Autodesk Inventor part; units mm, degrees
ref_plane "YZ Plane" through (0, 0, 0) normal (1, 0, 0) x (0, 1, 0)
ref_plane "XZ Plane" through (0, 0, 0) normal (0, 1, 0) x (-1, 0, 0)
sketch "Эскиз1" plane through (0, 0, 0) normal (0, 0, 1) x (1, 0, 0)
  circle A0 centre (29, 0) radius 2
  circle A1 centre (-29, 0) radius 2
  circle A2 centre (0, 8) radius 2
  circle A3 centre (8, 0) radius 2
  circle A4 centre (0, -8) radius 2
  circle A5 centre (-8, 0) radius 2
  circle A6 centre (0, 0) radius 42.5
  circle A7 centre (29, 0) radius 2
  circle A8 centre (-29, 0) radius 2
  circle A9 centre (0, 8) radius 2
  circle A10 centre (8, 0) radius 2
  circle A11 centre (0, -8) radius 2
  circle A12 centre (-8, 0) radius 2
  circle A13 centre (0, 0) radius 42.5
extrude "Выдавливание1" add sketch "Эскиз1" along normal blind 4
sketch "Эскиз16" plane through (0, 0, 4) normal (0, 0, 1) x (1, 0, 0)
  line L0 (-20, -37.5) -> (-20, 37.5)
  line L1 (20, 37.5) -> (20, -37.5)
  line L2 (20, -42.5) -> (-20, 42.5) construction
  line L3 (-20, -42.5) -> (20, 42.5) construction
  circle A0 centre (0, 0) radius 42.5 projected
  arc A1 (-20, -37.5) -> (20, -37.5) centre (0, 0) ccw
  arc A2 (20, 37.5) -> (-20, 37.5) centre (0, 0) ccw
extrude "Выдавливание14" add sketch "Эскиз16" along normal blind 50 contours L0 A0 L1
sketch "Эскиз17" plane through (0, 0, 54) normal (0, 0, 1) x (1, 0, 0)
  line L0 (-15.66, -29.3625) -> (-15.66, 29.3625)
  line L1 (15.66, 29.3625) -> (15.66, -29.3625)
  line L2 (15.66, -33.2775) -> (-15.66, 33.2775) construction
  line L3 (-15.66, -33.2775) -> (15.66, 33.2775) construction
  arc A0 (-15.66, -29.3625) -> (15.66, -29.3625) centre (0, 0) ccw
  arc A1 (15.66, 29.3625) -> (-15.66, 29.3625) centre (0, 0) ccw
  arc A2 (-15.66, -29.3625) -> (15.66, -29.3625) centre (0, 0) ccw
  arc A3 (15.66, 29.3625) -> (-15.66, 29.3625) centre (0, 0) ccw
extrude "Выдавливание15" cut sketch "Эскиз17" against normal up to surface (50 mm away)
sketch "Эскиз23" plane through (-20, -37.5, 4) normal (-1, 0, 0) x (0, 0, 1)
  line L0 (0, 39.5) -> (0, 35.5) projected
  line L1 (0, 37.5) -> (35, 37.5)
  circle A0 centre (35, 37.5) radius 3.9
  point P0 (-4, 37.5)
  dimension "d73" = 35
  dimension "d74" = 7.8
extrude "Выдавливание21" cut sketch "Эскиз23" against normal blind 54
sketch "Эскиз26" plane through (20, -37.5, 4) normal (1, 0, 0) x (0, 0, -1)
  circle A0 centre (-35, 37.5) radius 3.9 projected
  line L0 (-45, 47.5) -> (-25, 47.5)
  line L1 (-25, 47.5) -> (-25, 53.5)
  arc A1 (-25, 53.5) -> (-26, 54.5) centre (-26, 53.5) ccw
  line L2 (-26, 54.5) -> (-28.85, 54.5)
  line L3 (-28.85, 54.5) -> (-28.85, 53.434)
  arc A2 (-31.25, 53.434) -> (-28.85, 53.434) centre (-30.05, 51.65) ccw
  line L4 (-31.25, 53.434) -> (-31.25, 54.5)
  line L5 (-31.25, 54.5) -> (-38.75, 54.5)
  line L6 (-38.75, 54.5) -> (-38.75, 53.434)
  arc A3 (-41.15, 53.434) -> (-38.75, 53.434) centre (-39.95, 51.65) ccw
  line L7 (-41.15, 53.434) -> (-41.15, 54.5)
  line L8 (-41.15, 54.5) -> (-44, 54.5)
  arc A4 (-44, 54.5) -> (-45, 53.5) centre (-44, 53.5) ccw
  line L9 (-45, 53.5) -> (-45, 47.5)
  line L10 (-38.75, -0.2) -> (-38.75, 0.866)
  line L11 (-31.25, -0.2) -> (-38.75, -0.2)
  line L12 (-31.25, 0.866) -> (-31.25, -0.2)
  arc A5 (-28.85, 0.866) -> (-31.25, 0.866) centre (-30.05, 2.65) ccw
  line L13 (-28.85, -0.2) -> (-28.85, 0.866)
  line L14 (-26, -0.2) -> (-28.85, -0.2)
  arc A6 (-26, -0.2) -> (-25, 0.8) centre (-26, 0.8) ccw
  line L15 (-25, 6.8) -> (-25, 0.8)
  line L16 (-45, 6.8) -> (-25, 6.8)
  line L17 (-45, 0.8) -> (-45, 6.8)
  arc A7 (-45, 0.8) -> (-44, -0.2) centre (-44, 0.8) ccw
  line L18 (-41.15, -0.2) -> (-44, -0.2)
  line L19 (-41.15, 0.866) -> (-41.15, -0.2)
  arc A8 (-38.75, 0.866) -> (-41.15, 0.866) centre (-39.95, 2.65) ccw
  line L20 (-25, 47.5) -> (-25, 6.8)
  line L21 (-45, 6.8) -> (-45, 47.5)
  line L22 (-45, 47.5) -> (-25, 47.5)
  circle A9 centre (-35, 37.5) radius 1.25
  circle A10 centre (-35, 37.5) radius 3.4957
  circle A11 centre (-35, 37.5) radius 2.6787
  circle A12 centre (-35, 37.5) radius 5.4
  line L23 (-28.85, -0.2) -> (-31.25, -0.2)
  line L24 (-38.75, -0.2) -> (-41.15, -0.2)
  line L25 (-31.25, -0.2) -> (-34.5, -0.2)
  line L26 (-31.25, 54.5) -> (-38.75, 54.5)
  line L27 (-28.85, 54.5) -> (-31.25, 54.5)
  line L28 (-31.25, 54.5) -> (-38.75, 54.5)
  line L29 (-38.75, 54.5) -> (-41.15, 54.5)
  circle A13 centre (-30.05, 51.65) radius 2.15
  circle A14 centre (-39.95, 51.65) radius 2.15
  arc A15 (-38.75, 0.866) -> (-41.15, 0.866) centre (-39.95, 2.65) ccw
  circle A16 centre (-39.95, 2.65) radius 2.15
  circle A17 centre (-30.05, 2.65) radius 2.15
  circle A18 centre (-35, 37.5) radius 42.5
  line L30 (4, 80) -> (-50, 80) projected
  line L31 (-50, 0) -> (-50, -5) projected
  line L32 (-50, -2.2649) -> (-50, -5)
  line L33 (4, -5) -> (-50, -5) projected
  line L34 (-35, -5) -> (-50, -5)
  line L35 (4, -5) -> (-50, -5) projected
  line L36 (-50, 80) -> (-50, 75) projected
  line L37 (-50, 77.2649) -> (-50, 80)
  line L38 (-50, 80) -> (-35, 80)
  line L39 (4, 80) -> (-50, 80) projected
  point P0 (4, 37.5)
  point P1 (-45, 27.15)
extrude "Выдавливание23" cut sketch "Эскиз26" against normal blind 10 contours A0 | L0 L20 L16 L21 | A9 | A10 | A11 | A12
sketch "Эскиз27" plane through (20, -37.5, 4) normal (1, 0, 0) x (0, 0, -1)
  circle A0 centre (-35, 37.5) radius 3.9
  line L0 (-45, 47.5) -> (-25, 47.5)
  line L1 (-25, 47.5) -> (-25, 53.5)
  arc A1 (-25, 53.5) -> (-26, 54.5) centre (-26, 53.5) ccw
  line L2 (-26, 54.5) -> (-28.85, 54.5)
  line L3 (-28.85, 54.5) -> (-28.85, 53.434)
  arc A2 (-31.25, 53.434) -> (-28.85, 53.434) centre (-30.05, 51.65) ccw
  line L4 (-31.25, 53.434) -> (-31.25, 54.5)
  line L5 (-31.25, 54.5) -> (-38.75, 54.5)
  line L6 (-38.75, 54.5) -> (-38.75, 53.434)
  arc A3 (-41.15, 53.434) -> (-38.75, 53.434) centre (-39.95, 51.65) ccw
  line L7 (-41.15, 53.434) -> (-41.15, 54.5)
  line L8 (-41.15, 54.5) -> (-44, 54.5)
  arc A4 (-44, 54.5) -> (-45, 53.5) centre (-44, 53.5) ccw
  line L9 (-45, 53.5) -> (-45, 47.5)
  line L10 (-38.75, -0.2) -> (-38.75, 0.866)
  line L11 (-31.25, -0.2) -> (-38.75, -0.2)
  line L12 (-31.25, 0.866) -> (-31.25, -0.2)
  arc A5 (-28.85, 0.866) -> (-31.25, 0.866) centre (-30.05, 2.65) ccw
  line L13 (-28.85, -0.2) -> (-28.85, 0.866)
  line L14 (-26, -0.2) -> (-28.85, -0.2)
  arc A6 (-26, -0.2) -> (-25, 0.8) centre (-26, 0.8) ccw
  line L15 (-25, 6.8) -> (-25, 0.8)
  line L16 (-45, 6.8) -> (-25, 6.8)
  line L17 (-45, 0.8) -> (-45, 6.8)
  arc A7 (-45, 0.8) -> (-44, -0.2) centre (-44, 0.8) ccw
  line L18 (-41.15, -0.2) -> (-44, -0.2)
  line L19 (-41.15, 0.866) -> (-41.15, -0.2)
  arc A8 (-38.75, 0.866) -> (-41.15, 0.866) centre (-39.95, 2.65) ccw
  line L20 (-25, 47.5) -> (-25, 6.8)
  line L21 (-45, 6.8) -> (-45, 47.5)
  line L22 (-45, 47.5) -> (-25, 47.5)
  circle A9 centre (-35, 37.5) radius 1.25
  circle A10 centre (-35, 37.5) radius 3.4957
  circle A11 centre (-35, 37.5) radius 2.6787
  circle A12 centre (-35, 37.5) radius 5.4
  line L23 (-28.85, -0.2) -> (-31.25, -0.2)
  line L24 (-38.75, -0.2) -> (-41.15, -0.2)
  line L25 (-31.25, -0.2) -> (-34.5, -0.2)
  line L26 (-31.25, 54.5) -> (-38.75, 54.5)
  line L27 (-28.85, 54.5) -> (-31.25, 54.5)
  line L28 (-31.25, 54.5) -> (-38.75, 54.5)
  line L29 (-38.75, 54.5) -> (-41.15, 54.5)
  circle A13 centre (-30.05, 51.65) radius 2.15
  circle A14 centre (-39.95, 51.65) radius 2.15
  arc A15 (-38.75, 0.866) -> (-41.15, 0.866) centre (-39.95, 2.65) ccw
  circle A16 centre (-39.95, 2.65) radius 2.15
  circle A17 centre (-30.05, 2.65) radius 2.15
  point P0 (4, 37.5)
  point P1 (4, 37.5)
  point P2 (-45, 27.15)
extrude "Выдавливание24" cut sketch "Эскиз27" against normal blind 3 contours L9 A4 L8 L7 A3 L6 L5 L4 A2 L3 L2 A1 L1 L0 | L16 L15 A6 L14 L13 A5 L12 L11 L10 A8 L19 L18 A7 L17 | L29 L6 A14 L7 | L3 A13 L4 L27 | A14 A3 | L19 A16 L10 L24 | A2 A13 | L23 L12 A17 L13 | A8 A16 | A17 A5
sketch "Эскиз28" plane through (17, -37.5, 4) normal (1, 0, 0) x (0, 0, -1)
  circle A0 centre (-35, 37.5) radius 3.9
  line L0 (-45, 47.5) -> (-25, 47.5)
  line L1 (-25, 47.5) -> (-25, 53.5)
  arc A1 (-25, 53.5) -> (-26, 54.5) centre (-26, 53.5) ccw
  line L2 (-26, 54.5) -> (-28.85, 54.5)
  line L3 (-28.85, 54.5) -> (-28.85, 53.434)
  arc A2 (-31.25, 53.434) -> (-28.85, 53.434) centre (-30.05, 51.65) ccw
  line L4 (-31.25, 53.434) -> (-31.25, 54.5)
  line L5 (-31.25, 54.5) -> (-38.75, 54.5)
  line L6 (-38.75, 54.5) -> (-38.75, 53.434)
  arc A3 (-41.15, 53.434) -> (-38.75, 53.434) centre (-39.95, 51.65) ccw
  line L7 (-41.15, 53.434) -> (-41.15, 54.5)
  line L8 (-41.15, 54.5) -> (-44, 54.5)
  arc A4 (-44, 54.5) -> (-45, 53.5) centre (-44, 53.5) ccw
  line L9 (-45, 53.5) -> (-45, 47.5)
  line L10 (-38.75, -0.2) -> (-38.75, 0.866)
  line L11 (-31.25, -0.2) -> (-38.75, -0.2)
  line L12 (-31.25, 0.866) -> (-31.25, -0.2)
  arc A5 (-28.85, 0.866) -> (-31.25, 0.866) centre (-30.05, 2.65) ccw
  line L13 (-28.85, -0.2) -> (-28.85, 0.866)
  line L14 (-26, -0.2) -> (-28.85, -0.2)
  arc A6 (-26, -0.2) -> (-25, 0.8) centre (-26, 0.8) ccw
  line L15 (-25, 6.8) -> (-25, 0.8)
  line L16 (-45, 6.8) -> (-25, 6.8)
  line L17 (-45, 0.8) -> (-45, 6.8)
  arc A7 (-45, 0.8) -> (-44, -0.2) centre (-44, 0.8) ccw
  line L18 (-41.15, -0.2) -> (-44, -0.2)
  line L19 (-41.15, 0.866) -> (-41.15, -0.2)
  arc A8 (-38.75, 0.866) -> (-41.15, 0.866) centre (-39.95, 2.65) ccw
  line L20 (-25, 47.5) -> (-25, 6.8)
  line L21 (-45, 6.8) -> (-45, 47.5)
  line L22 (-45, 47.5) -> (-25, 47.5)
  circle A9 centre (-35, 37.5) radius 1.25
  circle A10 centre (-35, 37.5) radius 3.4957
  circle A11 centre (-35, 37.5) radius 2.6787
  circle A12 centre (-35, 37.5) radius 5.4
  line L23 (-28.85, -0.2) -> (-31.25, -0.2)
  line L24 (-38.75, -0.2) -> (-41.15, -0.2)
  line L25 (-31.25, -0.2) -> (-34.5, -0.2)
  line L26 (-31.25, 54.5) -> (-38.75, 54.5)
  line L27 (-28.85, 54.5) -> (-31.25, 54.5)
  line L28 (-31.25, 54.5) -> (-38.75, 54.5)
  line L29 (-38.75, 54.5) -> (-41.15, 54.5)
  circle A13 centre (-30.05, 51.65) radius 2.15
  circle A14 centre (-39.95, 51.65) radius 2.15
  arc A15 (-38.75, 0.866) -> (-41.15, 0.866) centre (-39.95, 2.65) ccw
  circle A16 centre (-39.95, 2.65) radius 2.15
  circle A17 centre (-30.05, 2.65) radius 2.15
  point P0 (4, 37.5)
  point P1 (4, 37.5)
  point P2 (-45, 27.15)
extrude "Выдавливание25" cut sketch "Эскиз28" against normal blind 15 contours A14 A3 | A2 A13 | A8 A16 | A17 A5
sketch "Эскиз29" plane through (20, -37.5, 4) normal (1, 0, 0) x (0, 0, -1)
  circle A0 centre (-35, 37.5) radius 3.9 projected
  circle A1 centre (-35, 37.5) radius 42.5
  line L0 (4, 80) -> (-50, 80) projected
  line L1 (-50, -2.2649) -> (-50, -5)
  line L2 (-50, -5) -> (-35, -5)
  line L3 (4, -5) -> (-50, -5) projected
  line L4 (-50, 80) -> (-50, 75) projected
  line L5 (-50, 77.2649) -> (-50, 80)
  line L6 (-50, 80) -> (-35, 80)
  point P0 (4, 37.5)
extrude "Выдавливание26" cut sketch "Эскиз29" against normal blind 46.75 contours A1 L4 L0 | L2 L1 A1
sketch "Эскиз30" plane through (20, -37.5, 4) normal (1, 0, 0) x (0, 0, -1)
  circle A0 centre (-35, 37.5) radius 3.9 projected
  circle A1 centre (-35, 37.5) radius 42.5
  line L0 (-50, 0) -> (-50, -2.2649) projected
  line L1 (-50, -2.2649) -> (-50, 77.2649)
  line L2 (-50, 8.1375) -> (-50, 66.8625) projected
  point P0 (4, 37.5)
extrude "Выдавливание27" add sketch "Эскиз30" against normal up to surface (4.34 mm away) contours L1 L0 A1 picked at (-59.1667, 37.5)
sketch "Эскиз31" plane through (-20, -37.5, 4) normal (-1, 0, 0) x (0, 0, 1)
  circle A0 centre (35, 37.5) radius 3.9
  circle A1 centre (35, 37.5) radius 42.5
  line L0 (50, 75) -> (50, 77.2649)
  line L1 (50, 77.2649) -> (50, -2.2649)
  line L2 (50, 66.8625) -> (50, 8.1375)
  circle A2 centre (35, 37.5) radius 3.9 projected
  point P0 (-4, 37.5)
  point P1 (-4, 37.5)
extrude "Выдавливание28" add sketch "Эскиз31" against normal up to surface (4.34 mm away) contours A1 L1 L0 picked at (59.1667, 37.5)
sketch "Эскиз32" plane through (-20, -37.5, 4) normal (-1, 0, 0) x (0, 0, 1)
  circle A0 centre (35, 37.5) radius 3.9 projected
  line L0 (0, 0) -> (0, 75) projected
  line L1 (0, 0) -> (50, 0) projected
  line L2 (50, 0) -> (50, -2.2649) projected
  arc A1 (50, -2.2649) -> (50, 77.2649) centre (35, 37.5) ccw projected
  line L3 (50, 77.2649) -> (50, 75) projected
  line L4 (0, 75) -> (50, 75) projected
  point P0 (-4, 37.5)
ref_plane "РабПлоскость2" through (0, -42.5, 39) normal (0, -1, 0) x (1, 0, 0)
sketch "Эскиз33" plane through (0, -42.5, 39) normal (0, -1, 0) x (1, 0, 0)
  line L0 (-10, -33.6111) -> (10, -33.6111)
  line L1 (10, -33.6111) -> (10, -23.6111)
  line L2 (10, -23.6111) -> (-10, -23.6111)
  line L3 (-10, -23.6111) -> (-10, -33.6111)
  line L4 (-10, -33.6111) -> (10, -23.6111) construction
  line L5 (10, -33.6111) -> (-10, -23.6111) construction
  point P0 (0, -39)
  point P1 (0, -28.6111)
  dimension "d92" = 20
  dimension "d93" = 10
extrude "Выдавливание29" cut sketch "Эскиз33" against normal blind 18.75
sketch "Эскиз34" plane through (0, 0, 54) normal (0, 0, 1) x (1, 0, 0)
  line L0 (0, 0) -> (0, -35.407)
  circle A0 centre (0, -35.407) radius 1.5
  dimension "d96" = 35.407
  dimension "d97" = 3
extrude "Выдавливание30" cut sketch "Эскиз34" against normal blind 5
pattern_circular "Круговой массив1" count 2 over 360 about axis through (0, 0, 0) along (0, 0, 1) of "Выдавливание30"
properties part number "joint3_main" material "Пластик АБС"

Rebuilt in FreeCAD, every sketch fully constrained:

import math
import FreeCAD as App
import Part
import Sketcher
from FreeCAD import Vector
Q = App.Units.Quantity


def add_polygon(sketch, points):
    """Adds a closed chain of lines whose ends are joined by coincident constraints."""
    first, n = sketch.GeometryCount, len(points)
    for a, b in zip(points, points[1:] + points[:1]):
        sketch.addGeometry(Part.LineSegment(App.Vector(*a, 0), App.Vector(*b, 0)), False)
    for i in range(n):
        sketch.addConstraint(Sketcher.Constraint("Coincident", first + i, 2, first + (i + 1) % n, 1))

doc = App.newDocument("Part")
params = doc.addObject("Spreadsheet::Sheet", "Params")
for row, (alias, value) in enumerate([
    ("sketch1_diameter", "85 mm"),
    ("sketch1_diameter2", "4 mm"),
    ("pad1_length", "4 mm"),
    ("sketch2_radius", "42.5 mm"),
    ("sketch2_height", "75 mm"),
    ("pad2_length", "50 mm"),
    ("pocket1_length", "50 mm"),
    ("sketch4_diameter", "7.8 mm"),
    ("pocket2_length", "54 mm"),
    ("sketch5_height", "20 mm"),
    ("sketch5_width", "40.7 mm"),
    ("pocket3_length", "10 mm"),
    ("sketch6_radius", "1 mm"),
    ("sketch6_width", "6 mm"),
    ("sketch6_height", "20 mm"),
    ("pocket4_length", "3 mm"),
    ("sketch7_diameter", "4.3 mm"),
    ("pocket5_length", "15 mm"),
    ("sketch8_radius", "42.5 mm"),
    ("sketch8_height", "15 mm"),
    ("pocket6_length", "46.75 mm"),
    ("sketch9_radius", "42.5 mm"),
    ("pad3_length", "4.34 mm"),
    ("sketch10_radius", "42.5 mm"),
    ("pad4_length", "4.34 mm"),
    ("sketch11_width", "20 mm"),
    ("sketch11_height", "10 mm"),
    ("pocket7_length", "18.75 mm"),
    ("sketch12_diameter", "3 mm"),
    ("pocket8_length", "5 mm"),
], start=1):
    params.set(f"A{row}", alias)
    params.set(f"B{row}", "=" + value)
    params.setAlias(f"B{row}", alias)

body = doc.addObject("PartDesign::Body", "Body")

# Sketch on XY plane
sketch1 = body.newObject("Sketcher::SketchObject", "Sketch")
sketch1.AttachmentSupport = (doc.getObject("XY_Plane"), [""])
sketch1.MapMode = "FlatFace"
sketch1.addGeometry([
    Part.Circle(Vector(0, 0, 0), Vector(0, 0, 1), 42.5),  # 0
    Part.Circle(Vector(0, -8, 0), Vector(0, 0, 1), 2),  # 1
    Part.Circle(Vector(-29, 0, 0), Vector(0, 0, 1), 2),  # 2
    Part.Circle(Vector(-8, 0, 0), Vector(0, 0, 1), 2),  # 3
    Part.Circle(Vector(8, 0, 0), Vector(0, 0, 1), 2),  # 4
    Part.Circle(Vector(0, 8, 0), Vector(0, 0, 1), 2),  # 5
    Part.Circle(Vector(29, 0, 0), Vector(0, 0, 1), 2),  # 6
], False)
sketch1.addConstraint([
    Sketcher.Constraint("Coincident", 0, 3, -1, 1),
    Sketcher.Constraint("Equal", 1, 2),
    Sketcher.Constraint("Equal", 2, 3),
    Sketcher.Constraint("Equal", 3, 4),
    Sketcher.Constraint("Equal", 4, 5),
    Sketcher.Constraint("Equal", 5, 6),
    Sketcher.Constraint("Symmetric", 3, 3, 4, 3, -1, 1),
    Sketcher.Constraint("Symmetric", 1, 3, 5, 3, -1, 1),
    Sketcher.Constraint("Symmetric", 2, 3, 6, 3, -1, 1),
    Sketcher.Constraint("PointOnObject", 1, 3, -2),
    Sketcher.Constraint("PointOnObject", 2, 3, -1),
    Sketcher.Constraint("PointOnObject", 3, 3, -1),
    Sketcher.Constraint("Diameter", 0, Q("85 mm")),
    Sketcher.Constraint("Diameter", 1, Q("4 mm")),
    Sketcher.Constraint("DistanceY", 1, 3, -1, 1, Q("8 mm")),
    Sketcher.Constraint("DistanceX", 2, 3, -1, 1, Q("29 mm")),
    Sketcher.Constraint("DistanceX", 3, 3, -1, 1, Q("8 mm")),
])
sketch1.setExpression("Constraints[12]", "Params.sketch1_diameter")
sketch1.setExpression("Constraints[13]", "Params.sketch1_diameter2")
pad1 = body.newObject("PartDesign::Pad", "Pad")
pad1.Profile = sketch1
pad1.setExpression("Length", "Params.pad1_length")

# Sketch on XY plane
sketch2 = body.newObject("Sketcher::SketchObject", "Sketch001")
sketch2.AttachmentSupport = (doc.getObject("XY_Plane"), [""])
sketch2.MapMode = "FlatFace"
sketch2.AttachmentOffset = App.Placement(Vector(0, 0, 4), App.Rotation())
sketch2.addGeometry([
    Part.LineSegment(Vector(-20, 37.5, 0), Vector(-20, -37.5, 0)),
    Part.ArcOfCircle(Part.Circle(Vector(0, 0, 0), Vector(0, 0, 1), 42.5), math.radians(-118.072487), math.radians(-61.927513)),
    Part.LineSegment(Vector(20, -37.5, 0), Vector(20, 37.5, 0)),
    Part.ArcOfCircle(Part.Circle(Vector(0, 0, 0), Vector(0, 0, 1), 42.5), math.radians(61.927513), math.radians(118.072487)),
], False)
sketch2.addConstraint([
    Sketcher.Constraint("Coincident", 0, 2, 1, 1),
    Sketcher.Constraint("Coincident", 1, 2, 2, 1),
    Sketcher.Constraint("Coincident", 2, 2, 3, 1),
    Sketcher.Constraint("Coincident", 3, 2, 0, 1),
    Sketcher.Constraint("Vertical", 0),
    Sketcher.Constraint("Vertical", 2),
    Sketcher.Constraint("Coincident", 1, 3, -1, 1),
    Sketcher.Constraint("Coincident", 3, 3, -1, 1),
    Sketcher.Constraint("Equal", 1, 3),
    Sketcher.Constraint("Horizontal", 0, 2, 1, 2),
    Sketcher.Constraint("Radius", 1, Q("42.5 mm")),
    Sketcher.Constraint("DistanceY", 0, 2, 0, 1, Q("75 mm")),
])
sketch2.setExpression("Constraints[10]", "Params.sketch2_radius")
sketch2.setExpression("Constraints[11]", "Params.sketch2_height")
pad2 = body.newObject("PartDesign::Pad", "Pad001")
pad2.Profile = sketch2
pad2.setExpression("Length", "Params.pad2_length")

# Sketch on XY plane
sketch3 = body.newObject("Sketcher::SketchObject", "Sketch002")
sketch3.AttachmentSupport = (doc.getObject("XY_Plane"), [""])
sketch3.MapMode = "FlatFace"
sketch3.AttachmentOffset = App.Placement(Vector(0, 0, 54), App.Rotation())
sketch3.addGeometry([
    Part.LineSegment(Vector(-15.66, 29.3625, 0), Vector(-15.66, -29.3625, 0)),
    Part.ArcOfCircle(Part.Circle(Vector(0, 0, 0), Vector(0, 0, 1), 33.2775), math.radians(-118.072487), math.radians(-61.927513)),
    Part.LineSegment(Vector(15.66, -29.3625, 0), Vector(15.66, 29.3625, 0)),
    Part.ArcOfCircle(Part.Circle(Vector(0, 0, 0), Vector(0, 0, 1), 33.2775), math.radians(61.927513), math.radians(118.072487)),
], False)
sketch3.addConstraint([
    Sketcher.Constraint("Coincident", 0, 2, 1, 1),
    Sketcher.Constraint("Coincident", 1, 2, 2, 1),
    Sketcher.Constraint("Coincident", 2, 2, 3, 1),
    Sketcher.Constraint("Coincident", 3, 2, 0, 1),
    Sketcher.Constraint("Vertical", 0),
    Sketcher.Constraint("Vertical", 2),
    Sketcher.Constraint("Coincident", 1, 3, -1, 1),
    Sketcher.Constraint("Coincident", 3, 3, -1, 1),
    Sketcher.Constraint("Equal", 1, 3),
    Sketcher.Constraint("Horizontal", 0, 2, 1, 2),
    Sketcher.Constraint("Radius", 1, Q("33.2775 mm")),
    Sketcher.Constraint("DistanceY", 0, 2, 0, 1, Q("58.725 mm")),
])
pocket1 = body.newObject("PartDesign::Pocket", "Pocket")
pocket1.Profile = sketch3
pocket1.setExpression("Length", "Params.pocket1_length")

# Sketch on YZ plane
sketch4 = body.newObject("Sketcher::SketchObject", "Sketch003")
sketch4.AttachmentSupport = (doc.getObject("YZ_Plane"), [""])
sketch4.MapMode = "FlatFace"
sketch4.AttachmentOffset = App.Placement(Vector(0, 0, -20), App.Rotation())
sketch4.addGeometry(Part.Circle(Vector(0, 39, 0), Vector(0, 0, 1), 3.9), False)
sketch4.addConstraint([
    Sketcher.Constraint("PointOnObject", 0, 3, -2),
    Sketcher.Constraint("Diameter", 0, Q("7.8 mm")),
    Sketcher.Constraint("DistanceY", -1, 1, 0, 3, Q("39 mm")),
])
sketch4.setExpression("Constraints[1]", "Params.sketch4_diameter")
pocket2 = body.newObject("PartDesign::Pocket", "Pocket001")
pocket2.Profile = sketch4
pocket2.setExpression("Length", "Params.pocket2_length")
pocket2.Reversed = True

# Sketch on YZ plane
sketch5 = body.newObject("Sketcher::SketchObject", "Sketch004")
sketch5.AttachmentSupport = (doc.getObject("YZ_Plane"), [""])
sketch5.MapMode = "FlatFace"
sketch5.AttachmentOffset = App.Placement(Vector(0, 0, 20), App.Rotation())
add_polygon(sketch5, [(10, 29), (10, 49), (-30.7, 49), (-30.7, 29)])  # lines 0-3
sketch5.addConstraint([
    Sketcher.Constraint("Vertical", 0),
    Sketcher.Constraint("Horizontal", 1),
    Sketcher.Constraint("Vertical", 2),
    Sketcher.Constraint("Horizontal", 3),
    Sketcher.Constraint("DistanceY", 0, 1, 0, 2, Q("20 mm")),
    Sketcher.Constraint("DistanceX", 1, 2, 1, 1, Q("40.7 mm")),
    Sketcher.Constraint("DistanceX", -1, 1, 0, 2, Q("10 mm")),
    Sketcher.Constraint("DistanceY", -1, 1, 0, 2, Q("49 mm")),
])
sketch5.setExpression("Constraints[8]", "Params.sketch5_height")
sketch5.setExpression("Constraints[9]", "Params.sketch5_width")
pocket3 = body.newObject("PartDesign::Pocket", "Pocket002")
pocket3.Profile = sketch5
pocket3.setExpression("Length", "Params.pocket3_length")

# Sketch on YZ plane
sketch6 = body.newObject("Sketcher::SketchObject", "Sketch005")
sketch6.AttachmentSupport = (doc.getObject("YZ_Plane"), [""])
sketch6.MapMode = "FlatFace"
sketch6.AttachmentOffset = App.Placement(Vector(0, 0, 20), App.Rotation())
sketch6.addGeometry([
    Part.LineSegment(Vector(16, 49, 0), Vector(10, 49, 0)),  # 0
    Part.LineSegment(Vector(10, 49, 0), Vector(10, 29, 0)),  # 1
    Part.LineSegment(Vector(10, 29, 0), Vector(16, 29, 0)),  # 2
    Part.ArcOfCircle(Part.Circle(Vector(16, 30, 0), Vector(0, 0, 1), 1), math.radians(-90), math.radians(0)),  # 3
    Part.LineSegment(Vector(17, 30, 0), Vector(17, 48, 0)),  # 4
    Part.ArcOfCircle(Part.Circle(Vector(16, 48, 0), Vector(0, 0, 1), 1), math.radians(0), math.radians(90)),  # 5
    Part.LineSegment(Vector(-30.7, 29, 0), Vector(-30.7, 49, 0)),  # 6
    Part.LineSegment(Vector(-30.7, 49, 0), Vector(-36.7, 49, 0)),  # 7
    Part.ArcOfCircle(Part.Circle(Vector(-36.7, 48, 0), Vector(0, 0, 1), 1), math.radians(90), math.radians(180)),  # 8
    Part.LineSegment(Vector(-37.7, 48, 0), Vector(-37.7, 30, 0)),  # 9
    Part.ArcOfCircle(Part.Circle(Vector(-36.7, 30, 0), Vector(0, 0, 1), 1), math.radians(180), math.radians(270)),  # 10
    Part.LineSegment(Vector(-36.7, 29, 0), Vector(-30.7, 29, 0)),  # 11
], False)
sketch6.addConstraint([
    Sketcher.Constraint("Coincident", 0, 2, 1, 1),
    Sketcher.Constraint("Coincident", 1, 2, 2, 1),
    Sketcher.Constraint("Tangent", 2, 2, 3, 1),
    Sketcher.Constraint("Tangent", 3, 2, 4, 1),
    Sketcher.Constraint("Tangent", 4, 2, 5, 1),
    Sketcher.Constraint("Tangent", 5, 2, 0, 1),
    Sketcher.Constraint("Coincident", 6, 2, 7, 1),
    Sketcher.Constraint("Tangent", 7, 2, 8, 1),
    Sketcher.Constraint("Tangent", 8, 2, 9, 1),
    Sketcher.Constraint("Tangent", 9, 2, 10, 1),
    Sketcher.Constraint("Tangent", 10, 2, 11, 1),
    Sketcher.Constraint("Coincident", 11, 2, 6, 1),
    Sketcher.Constraint("Horizontal", 0),
    Sketcher.Constraint("Vertical", 1),
    Sketcher.Constraint("Horizontal", 2),
    Sketcher.Constraint("Vertical", 4),
    Sketcher.Constraint("Vertical", 6),
    Sketcher.Constraint("Horizontal", 7),
    Sketcher.Constraint("Vertical", 9),
    Sketcher.Constraint("Horizontal", 11),
    Sketcher.Constraint("Equal", 3, 5),
    Sketcher.Constraint("Equal", 5, 8),
    Sketcher.Constraint("Equal", 8, 10),
    Sketcher.Constraint("Horizontal", 5, 3, 8, 3),
    Sketcher.Constraint("Horizontal", 3, 3, 10, 3),
    Sketcher.Constraint("Equal", 2, 7),
    Sketcher.Constraint("Radius", 3, Q("1 mm")),
    Sketcher.Constraint("DistanceX", 0, 2, 0, 1, Q("6 mm")),
    Sketcher.Constraint("DistanceY", 1, 2, 1, 1, Q("20 mm")),
    Sketcher.Constraint("DistanceX", -1, 1, 3, 3, Q("16 mm")),
    Sketcher.Constraint("DistanceY", -1, 1, 3, 3, Q("30 mm")),
    Sketcher.Constraint("DistanceX", 8, 3, -1, 1, Q("36.7 mm")),
])
sketch6.setExpression("Constraints[26]", "Params.sketch6_radius")
sketch6.setExpression("Constraints[27]", "Params.sketch6_width")
sketch6.setExpression("Constraints[28]", "Params.sketch6_height")
pocket4 = body.newObject("PartDesign::Pocket", "Pocket003")
pocket4.Profile = sketch6
pocket4.setExpression("Length", "Params.pocket4_length")

# Sketch on YZ plane
sketch7 = body.newObject("Sketcher::SketchObject", "Sketch006")
sketch7.AttachmentSupport = (doc.getObject("YZ_Plane"), [""])
sketch7.MapMode = "FlatFace"
sketch7.AttachmentOffset = App.Placement(Vector(0, 0, 17), App.Rotation())
sketch7.addGeometry([
    Part.Circle(Vector(14.15, 43.95, 0), Vector(0, 0, 1), 2.150036),
    Part.Circle(Vector(14.15, 34.05, 0), Vector(0, 0, 1), 2.15),
    Part.Circle(Vector(-34.85, 43.95, 0), Vector(0, 0, 1), 2.15),
    Part.Circle(Vector(-34.85, 34.05, 0), Vector(0, 0, 1), 2.150036),
], False)
sketch7.addConstraint([
    Sketcher.Constraint("Equal", 0, 1),
    Sketcher.Constraint("Equal", 1, 2),
    Sketcher.Constraint("Equal", 2, 3),
    Sketcher.Constraint("Horizontal", 0, 3, 2, 3),
    Sketcher.Constraint("Horizontal", 1, 3, 3, 3),
    Sketcher.Constraint("Vertical", 0, 3, 1, 3),
    Sketcher.Constraint("Vertical", 2, 3, 3, 3),
    Sketcher.Constraint("Diameter", 0, Q("4.3 mm")),
    Sketcher.Constraint("DistanceX", 2, 3, 0, 3, Q("49 mm")),
    Sketcher.Constraint("DistanceY", 1, 3, 0, 3, Q("9.9 mm")),
    Sketcher.Constraint("DistanceX", -1, 1, 0, 3, Q("14.15 mm")),
    Sketcher.Constraint("DistanceY", -1, 1, 0, 3, Q("43.95 mm")),
])
sketch7.setExpression("Constraints[7]", "Params.sketch7_diameter")
pocket5 = body.newObject("PartDesign::Pocket", "Pocket004")
pocket5.Profile = sketch7
pocket5.setExpression("Length", "Params.pocket5_length")

# Sketch on YZ plane
sketch8 = body.newObject("Sketcher::SketchObject", "Sketch007")
sketch8.AttachmentSupport = (doc.getObject("YZ_Plane"), [""])
sketch8.MapMode = "FlatFace"
sketch8.AttachmentOffset = App.Placement(Vector(0, 0, 20), App.Rotation())
sketch8.addGeometry([
    Part.ArcOfCircle(Part.Circle(Vector(0, 39, 0), Vector(0, 0, 1), 42.5), math.radians(0), math.radians(20.667333)),  # 0
    Part.LineSegment(Vector(42.5, 39, 0), Vector(42.5, 54, 0)),  # 1
    Part.LineSegment(Vector(42.5, 54, 0), Vector(39.7649, 54, 0)),  # 2
    Part.LineSegment(Vector(-42.5, 54, 0), Vector(-42.5, 39, 0)),  # 3
    Part.ArcOfCircle(Part.Circle(Vector(0, 39, 0), Vector(0, 0, 1), 42.5), math.radians(159.332667), math.radians(180)),  # 4
    Part.LineSegment(Vector(-39.7649, 54, 0), Vector(-42.5, 54, 0)),  # 5
], False)
sketch8.addConstraint([
    Sketcher.Constraint("Tangent", 0, 1, 1, 1),
    Sketcher.Constraint("Coincident", 1, 2, 2, 1),
    Sketcher.Constraint("Coincident", 2, 2, 0, 2),
    Sketcher.Constraint("Tangent", 3, 2, 4, 2),
    Sketcher.Constraint("Coincident", 4, 1, 5, 1),
    Sketcher.Constraint("Coincident", 5, 2, 3, 1),
    Sketcher.Constraint("Vertical", 1),
    Sketcher.Constraint("Horizontal", 2),
    Sketcher.Constraint("Vertical", 3),
    Sketcher.Constraint("Horizontal", 5),
    Sketcher.Constraint("Coincident", 4, 3, 0, 3),
    Sketcher.Constraint("Equal", 0, 4),
    Sketcher.Constraint("Symmetric", 2, 2, 4, 1, -2),
    Sketcher.Constraint("Radius", 0, Q("42.5 mm")),
    Sketcher.Constraint("DistanceY", 1, 1, 1, 2, Q("15 mm")),
    Sketcher.Constraint("DistanceY", -1, 1, 0, 3, Q("39 mm")),
])
sketch8.setExpression("Constraints[13]", "Params.sketch8_radius")
sketch8.setExpression("Constraints[14]", "Params.sketch8_height")
pocket6 = body.newObject("PartDesign::Pocket", "Pocket005")
pocket6.Profile = sketch8
pocket6.setExpression("Length", "Params.pocket6_length")

# Sketch on YZ plane
sketch9 = body.newObject("Sketcher::SketchObject", "Sketch008")
sketch9.AttachmentSupport = (doc.getObject("YZ_Plane"), [""])
sketch9.MapMode = "FlatFace"
sketch9.AttachmentOffset = App.Placement(Vector(0, 0, 20), App.Rotation())
sketch9.addGeometry([
    Part.LineSegment(Vector(-39.7649, 54, 0), Vector(39.7649, 54, 0)),
    Part.ArcOfCircle(Part.Circle(Vector(0, 39, 0), Vector(0, 0, 1), 42.5), math.radians(20.667333), math.radians(159.332667)),
], False)
sketch9.addConstraint([
    Sketcher.Constraint("Coincident", 0, 1, 1, 2),
    Sketcher.Constraint("Coincident", 1, 1, 0, 2),
    Sketcher.Constraint("Horizontal", 0),
    Sketcher.Constraint("PointOnObject", 1, 3, -2),
    Sketcher.Constraint("Radius", 1, Q("42.5 mm")),
    Sketcher.Constraint("DistanceY", -1, 1, 1, 3, Q("39 mm")),
    Sketcher.Constraint("DistanceY", -1, 1, 0, 1, Q("54 mm")),
])
sketch9.setExpression("Constraints[4]", "Params.sketch9_radius")
pad3 = body.newObject("PartDesign::Pad", "Pad002")
pad3.Profile = sketch9
pad3.setExpression("Length", "Params.pad3_length")
pad3.Reversed = True

# Sketch on YZ plane
sketch10 = body.newObject("Sketcher::SketchObject", "Sketch009")
sketch10.AttachmentSupport = (doc.getObject("YZ_Plane"), [""])
sketch10.MapMode = "FlatFace"
sketch10.AttachmentOffset = App.Placement(Vector(0, 0, -20), App.Rotation())
sketch10.addGeometry([
    Part.ArcOfCircle(Part.Circle(Vector(0, 39, 0), Vector(0, 0, 1), 42.5), math.radians(20.667333), math.radians(159.332667)),
    Part.LineSegment(Vector(-39.7649, 54, 0), Vector(39.7649, 54, 0)),
], False)
sketch10.addConstraint([
    Sketcher.Constraint("Coincident", 0, 1, 1, 2),
    Sketcher.Constraint("Coincident", 1, 1, 0, 2),
    Sketcher.Constraint("Horizontal", 1),
    Sketcher.Constraint("PointOnObject", 0, 3, -2),
    Sketcher.Constraint("Radius", 0, Q("42.5 mm")),
    Sketcher.Constraint("DistanceY", -1, 1, 0, 3, Q("39 mm")),
    Sketcher.Constraint("DistanceY", -1, 1, 0, 1, Q("54 mm")),
])
sketch10.setExpression("Constraints[4]", "Params.sketch10_radius")
pad4 = body.newObject("PartDesign::Pad", "Pad003")
pad4.Profile = sketch10
pad4.setExpression("Length", "Params.pad4_length")

# Sketch on XZ plane
sketch11 = body.newObject("Sketcher::SketchObject", "Sketch010")
sketch11.AttachmentSupport = (doc.getObject("XZ_Plane"), [""])
sketch11.MapMode = "FlatFace"
sketch11.AttachmentOffset = App.Placement(Vector(0, 0, 42.5), App.Rotation())
add_polygon(sketch11, [(-10, 15.3889), (-10, 5.3889), (10, 5.3889), (10, 15.3889)])  # lines 0-3
sketch11.addConstraint([
    Sketcher.Constraint("Vertical", 0),
    Sketcher.Constraint("Horizontal", 1),
    Sketcher.Constraint("Vertical", 2),
    Sketcher.Constraint("Horizontal", 3),
    Sketcher.Constraint("DistanceX", 1, 1, 1, 2, Q("20 mm")),
    Sketcher.Constraint("DistanceY", 0, 2, 0, 1, Q("10 mm")),
    Sketcher.Constraint("DistanceX", 0, 2, -1, 1, Q("10 mm")),
    Sketcher.Constraint("DistanceY", -1, 1, 0, 2, Q("5.389 mm")),
])
sketch11.setExpression("Constraints[8]", "Params.sketch11_width")
sketch11.setExpression("Constraints[9]", "Params.sketch11_height")
pocket7 = body.newObject("PartDesign::Pocket", "Pocket006")
pocket7.Profile = sketch11
pocket7.setExpression("Length", "Params.pocket7_length")

# Sketch on XY plane
sketch12 = body.newObject("Sketcher::SketchObject", "Sketch011")
sketch12.AttachmentSupport = (doc.getObject("XY_Plane"), [""])
sketch12.MapMode = "FlatFace"
sketch12.AttachmentOffset = App.Placement(Vector(0, 0, 54), App.Rotation())
sketch12.addGeometry(Part.Circle(Vector(0, -35.407, 0), Vector(0, 0, 1), 1.5), False)
sketch12.addConstraint([
    Sketcher.Constraint("PointOnObject", 0, 3, -2),
    Sketcher.Constraint("Diameter", 0, Q("3 mm")),
    Sketcher.Constraint("DistanceY", 0, 3, -1, 1, Q("35.407 mm")),
])
sketch12.setExpression("Constraints[1]", "Params.sketch12_diameter")
pocket8 = body.newObject("PartDesign::Pocket", "Pocket007")
pocket8.Profile = sketch12
pocket8.setExpression("Length", "Params.pocket8_length")
doc.recompute()

polarpattern = body.newObject("PartDesign::PolarPattern", "PolarPattern")
polarpattern.Originals = [pocket8]
polarpattern.Axis = (doc.getObject("Z_Axis"), [""])
polarpattern.Angle = 360
polarpattern.Occurrences = 2
body.Tip = polarpattern

doc.recompute()
